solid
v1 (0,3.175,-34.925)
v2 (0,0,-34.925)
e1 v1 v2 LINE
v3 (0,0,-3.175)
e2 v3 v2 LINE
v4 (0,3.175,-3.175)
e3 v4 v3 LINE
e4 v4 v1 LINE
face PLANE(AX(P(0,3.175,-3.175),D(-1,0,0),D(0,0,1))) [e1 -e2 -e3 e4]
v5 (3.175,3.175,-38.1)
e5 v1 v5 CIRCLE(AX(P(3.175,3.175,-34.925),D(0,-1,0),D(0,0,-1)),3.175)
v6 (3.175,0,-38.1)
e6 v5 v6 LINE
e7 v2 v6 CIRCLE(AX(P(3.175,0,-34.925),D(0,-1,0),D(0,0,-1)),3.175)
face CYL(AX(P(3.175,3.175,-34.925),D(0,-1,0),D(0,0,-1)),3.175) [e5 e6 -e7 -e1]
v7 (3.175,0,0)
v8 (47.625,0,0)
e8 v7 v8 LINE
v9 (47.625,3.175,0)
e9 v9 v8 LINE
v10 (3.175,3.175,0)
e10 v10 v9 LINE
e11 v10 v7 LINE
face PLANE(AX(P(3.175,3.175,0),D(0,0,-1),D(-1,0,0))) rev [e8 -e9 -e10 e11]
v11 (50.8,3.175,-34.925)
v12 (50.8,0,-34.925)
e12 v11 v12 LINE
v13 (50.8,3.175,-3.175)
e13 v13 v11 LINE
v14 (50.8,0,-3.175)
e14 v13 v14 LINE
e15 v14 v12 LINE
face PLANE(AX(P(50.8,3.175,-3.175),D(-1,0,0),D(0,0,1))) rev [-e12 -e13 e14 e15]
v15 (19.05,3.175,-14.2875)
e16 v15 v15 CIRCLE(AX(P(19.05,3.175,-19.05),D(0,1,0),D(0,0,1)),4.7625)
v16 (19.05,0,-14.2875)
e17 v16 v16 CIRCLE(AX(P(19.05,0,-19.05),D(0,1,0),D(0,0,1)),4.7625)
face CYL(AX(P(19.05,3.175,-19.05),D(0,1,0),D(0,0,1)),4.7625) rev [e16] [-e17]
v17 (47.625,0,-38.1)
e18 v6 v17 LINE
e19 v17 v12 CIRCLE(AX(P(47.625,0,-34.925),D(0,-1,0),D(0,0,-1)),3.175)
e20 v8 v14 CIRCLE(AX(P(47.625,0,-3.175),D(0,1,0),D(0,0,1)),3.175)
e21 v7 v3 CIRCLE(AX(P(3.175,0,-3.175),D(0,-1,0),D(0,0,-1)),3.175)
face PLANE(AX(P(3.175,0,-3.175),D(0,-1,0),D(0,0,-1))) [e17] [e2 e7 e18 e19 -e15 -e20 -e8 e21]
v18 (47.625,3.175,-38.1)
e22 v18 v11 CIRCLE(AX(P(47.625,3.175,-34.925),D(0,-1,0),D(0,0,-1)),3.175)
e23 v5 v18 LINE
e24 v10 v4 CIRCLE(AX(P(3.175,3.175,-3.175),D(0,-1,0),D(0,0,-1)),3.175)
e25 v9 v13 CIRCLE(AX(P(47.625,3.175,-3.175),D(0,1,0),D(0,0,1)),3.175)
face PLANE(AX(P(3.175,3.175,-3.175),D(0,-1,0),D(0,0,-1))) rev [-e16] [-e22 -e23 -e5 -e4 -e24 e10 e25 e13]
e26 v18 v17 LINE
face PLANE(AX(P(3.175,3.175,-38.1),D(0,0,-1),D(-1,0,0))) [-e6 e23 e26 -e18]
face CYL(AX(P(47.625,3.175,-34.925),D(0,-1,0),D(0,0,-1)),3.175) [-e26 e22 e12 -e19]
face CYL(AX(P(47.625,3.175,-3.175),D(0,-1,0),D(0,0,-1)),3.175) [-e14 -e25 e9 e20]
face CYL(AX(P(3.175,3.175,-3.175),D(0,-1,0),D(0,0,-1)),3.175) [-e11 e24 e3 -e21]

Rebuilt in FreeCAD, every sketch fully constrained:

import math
import FreeCAD as App
import Part
import Sketcher
Q = App.Units.Quantity

doc = App.newDocument("Part")
body = doc.addObject("PartDesign::Body", "Body")

# Sketch on XZ plane
sketch1 = doc.addObject("Sketcher::SketchObject", "Sketch")
body.addObject(sketch1)
sketch1.AttachmentSupport = (doc.XZ_Plane, [""])
sketch1.MapMode = "FlatFace"
sketch1.addGeometry(Part.LineSegment(App.Vector(3.2, 0, 0), App.Vector(47.6, 0, 0)), False)
sketch1.addGeometry(Part.ArcOfCircle(Part.Circle(App.Vector(47.6, -3.2, 0), App.Vector(0, 0, 1), 3.2), math.radians(0), math.radians(90)), False)
sketch1.addGeometry(Part.LineSegment(App.Vector(50.8, -3.2, 0), App.Vector(50.8, -34.9, 0)), False)
sketch1.addGeometry(Part.ArcOfCircle(Part.Circle(App.Vector(47.6, -34.9, 0), App.Vector(0, 0, 1), 3.2), math.radians(-90), math.radians(0)), False)
sketch1.addGeometry(Part.LineSegment(App.Vector(47.6, -38.1, 0), App.Vector(3.2, -38.1, 0)), False)
sketch1.addGeometry(Part.ArcOfCircle(Part.Circle(App.Vector(3.2, -34.9, 0), App.Vector(0, 0, 1), 3.2), math.radians(-180), math.radians(-90)), False)
sketch1.addGeometry(Part.LineSegment(App.Vector(0, -34.9, 0), App.Vector(0, -3.2, 0)), False)
sketch1.addGeometry(Part.ArcOfCircle(Part.Circle(App.Vector(3.2, -3.2, 0), App.Vector(0, 0, 1), 3.2), math.radians(90), math.radians(180)), False)
sketch1.addConstraint(Sketcher.Constraint("Tangent", 0, 2, 1, 2))
sketch1.addConstraint(Sketcher.Constraint("Tangent", 1, 1, 2, 1))
sketch1.addConstraint(Sketcher.Constraint("Tangent", 2, 2, 3, 2))
sketch1.addConstraint(Sketcher.Constraint("Tangent", 3, 1, 4, 1))
sketch1.addConstraint(Sketcher.Constraint("Tangent", 4, 2, 5, 2))
sketch1.addConstraint(Sketcher.Constraint("Tangent", 5, 1, 6, 1))
sketch1.addConstraint(Sketcher.Constraint("Tangent", 6, 2, 7, 2))
sketch1.addConstraint(Sketcher.Constraint("Tangent", 7, 1, 0, 1))
sketch1.addConstraint(Sketcher.Constraint("Horizontal", 0))
sketch1.addConstraint(Sketcher.Constraint("Vertical", 2))
sketch1.addConstraint(Sketcher.Constraint("Horizontal", 4))
sketch1.addConstraint(Sketcher.Constraint("Vertical", 6))
sketch1.addConstraint(Sketcher.Constraint("Equal", 1, 3))
sketch1.addConstraint(Sketcher.Constraint("Equal", 3, 5))
sketch1.addConstraint(Sketcher.Constraint("Equal", 5, 7))
sketch1.addConstraint(Sketcher.Constraint("PointOnObject", 0, 2, -1))
sketch1.addConstraint(Sketcher.Constraint("PointOnObject", 5, 1, -2))
sketch1.addConstraint(Sketcher.Constraint("DistanceX", -1, 1, 1, 1, Q("2 in")))
sketch1.addConstraint(Sketcher.Constraint("Radius", 1, Q("0.125 in")))
sketch1.addConstraint(Sketcher.Constraint("DistanceY", 2, 2, 2, 1, Q("1.25 in")))
pad1 = doc.addObject("PartDesign::Pad", "Pad")
body.addObject(pad1)
pad1.Profile = sketch1
pad1.Length = Q("0.125 in")
pad1.Reversed = True

# Sketch on XZ plane
sketch2 = doc.addObject("Sketcher::SketchObject", "Sketch001")
body.addObject(sketch2)
sketch2.AttachmentSupport = (doc.XZ_Plane, [""])
sketch2.MapMode = "FlatFace"
sketch2.AttachmentOffset = App.Placement(App.Vector(0, 0, -0.125 * 25.4), App.Rotation())
sketch2.addGeometry(Part.Circle(App.Vector(19.1, -19.1, 0), App.Vector(0, 0, 1), 4.8), False)
sketch2.addConstraint(Sketcher.Constraint("Diameter", 0, Q("0.375 in")))
sketch2.addConstraint(Sketcher.Constraint("DistanceX", -1, 1, 0, 3, Q("0.75 in")))
sketch2.addConstraint(Sketcher.Constraint("DistanceY", 0, 3, -1, 1, Q("0.75 in")))
doc.recompute()
hole = doc.addObject("PartDesign::Hole", "Hole")
body.addObject(hole)
hole.Profile = sketch2
hole.ThreadType = "None"
hole.Diameter = Q("0.375 in")
hole.DepthType = "ThroughAll"
hole.Reversed = True

doc.recompute()
